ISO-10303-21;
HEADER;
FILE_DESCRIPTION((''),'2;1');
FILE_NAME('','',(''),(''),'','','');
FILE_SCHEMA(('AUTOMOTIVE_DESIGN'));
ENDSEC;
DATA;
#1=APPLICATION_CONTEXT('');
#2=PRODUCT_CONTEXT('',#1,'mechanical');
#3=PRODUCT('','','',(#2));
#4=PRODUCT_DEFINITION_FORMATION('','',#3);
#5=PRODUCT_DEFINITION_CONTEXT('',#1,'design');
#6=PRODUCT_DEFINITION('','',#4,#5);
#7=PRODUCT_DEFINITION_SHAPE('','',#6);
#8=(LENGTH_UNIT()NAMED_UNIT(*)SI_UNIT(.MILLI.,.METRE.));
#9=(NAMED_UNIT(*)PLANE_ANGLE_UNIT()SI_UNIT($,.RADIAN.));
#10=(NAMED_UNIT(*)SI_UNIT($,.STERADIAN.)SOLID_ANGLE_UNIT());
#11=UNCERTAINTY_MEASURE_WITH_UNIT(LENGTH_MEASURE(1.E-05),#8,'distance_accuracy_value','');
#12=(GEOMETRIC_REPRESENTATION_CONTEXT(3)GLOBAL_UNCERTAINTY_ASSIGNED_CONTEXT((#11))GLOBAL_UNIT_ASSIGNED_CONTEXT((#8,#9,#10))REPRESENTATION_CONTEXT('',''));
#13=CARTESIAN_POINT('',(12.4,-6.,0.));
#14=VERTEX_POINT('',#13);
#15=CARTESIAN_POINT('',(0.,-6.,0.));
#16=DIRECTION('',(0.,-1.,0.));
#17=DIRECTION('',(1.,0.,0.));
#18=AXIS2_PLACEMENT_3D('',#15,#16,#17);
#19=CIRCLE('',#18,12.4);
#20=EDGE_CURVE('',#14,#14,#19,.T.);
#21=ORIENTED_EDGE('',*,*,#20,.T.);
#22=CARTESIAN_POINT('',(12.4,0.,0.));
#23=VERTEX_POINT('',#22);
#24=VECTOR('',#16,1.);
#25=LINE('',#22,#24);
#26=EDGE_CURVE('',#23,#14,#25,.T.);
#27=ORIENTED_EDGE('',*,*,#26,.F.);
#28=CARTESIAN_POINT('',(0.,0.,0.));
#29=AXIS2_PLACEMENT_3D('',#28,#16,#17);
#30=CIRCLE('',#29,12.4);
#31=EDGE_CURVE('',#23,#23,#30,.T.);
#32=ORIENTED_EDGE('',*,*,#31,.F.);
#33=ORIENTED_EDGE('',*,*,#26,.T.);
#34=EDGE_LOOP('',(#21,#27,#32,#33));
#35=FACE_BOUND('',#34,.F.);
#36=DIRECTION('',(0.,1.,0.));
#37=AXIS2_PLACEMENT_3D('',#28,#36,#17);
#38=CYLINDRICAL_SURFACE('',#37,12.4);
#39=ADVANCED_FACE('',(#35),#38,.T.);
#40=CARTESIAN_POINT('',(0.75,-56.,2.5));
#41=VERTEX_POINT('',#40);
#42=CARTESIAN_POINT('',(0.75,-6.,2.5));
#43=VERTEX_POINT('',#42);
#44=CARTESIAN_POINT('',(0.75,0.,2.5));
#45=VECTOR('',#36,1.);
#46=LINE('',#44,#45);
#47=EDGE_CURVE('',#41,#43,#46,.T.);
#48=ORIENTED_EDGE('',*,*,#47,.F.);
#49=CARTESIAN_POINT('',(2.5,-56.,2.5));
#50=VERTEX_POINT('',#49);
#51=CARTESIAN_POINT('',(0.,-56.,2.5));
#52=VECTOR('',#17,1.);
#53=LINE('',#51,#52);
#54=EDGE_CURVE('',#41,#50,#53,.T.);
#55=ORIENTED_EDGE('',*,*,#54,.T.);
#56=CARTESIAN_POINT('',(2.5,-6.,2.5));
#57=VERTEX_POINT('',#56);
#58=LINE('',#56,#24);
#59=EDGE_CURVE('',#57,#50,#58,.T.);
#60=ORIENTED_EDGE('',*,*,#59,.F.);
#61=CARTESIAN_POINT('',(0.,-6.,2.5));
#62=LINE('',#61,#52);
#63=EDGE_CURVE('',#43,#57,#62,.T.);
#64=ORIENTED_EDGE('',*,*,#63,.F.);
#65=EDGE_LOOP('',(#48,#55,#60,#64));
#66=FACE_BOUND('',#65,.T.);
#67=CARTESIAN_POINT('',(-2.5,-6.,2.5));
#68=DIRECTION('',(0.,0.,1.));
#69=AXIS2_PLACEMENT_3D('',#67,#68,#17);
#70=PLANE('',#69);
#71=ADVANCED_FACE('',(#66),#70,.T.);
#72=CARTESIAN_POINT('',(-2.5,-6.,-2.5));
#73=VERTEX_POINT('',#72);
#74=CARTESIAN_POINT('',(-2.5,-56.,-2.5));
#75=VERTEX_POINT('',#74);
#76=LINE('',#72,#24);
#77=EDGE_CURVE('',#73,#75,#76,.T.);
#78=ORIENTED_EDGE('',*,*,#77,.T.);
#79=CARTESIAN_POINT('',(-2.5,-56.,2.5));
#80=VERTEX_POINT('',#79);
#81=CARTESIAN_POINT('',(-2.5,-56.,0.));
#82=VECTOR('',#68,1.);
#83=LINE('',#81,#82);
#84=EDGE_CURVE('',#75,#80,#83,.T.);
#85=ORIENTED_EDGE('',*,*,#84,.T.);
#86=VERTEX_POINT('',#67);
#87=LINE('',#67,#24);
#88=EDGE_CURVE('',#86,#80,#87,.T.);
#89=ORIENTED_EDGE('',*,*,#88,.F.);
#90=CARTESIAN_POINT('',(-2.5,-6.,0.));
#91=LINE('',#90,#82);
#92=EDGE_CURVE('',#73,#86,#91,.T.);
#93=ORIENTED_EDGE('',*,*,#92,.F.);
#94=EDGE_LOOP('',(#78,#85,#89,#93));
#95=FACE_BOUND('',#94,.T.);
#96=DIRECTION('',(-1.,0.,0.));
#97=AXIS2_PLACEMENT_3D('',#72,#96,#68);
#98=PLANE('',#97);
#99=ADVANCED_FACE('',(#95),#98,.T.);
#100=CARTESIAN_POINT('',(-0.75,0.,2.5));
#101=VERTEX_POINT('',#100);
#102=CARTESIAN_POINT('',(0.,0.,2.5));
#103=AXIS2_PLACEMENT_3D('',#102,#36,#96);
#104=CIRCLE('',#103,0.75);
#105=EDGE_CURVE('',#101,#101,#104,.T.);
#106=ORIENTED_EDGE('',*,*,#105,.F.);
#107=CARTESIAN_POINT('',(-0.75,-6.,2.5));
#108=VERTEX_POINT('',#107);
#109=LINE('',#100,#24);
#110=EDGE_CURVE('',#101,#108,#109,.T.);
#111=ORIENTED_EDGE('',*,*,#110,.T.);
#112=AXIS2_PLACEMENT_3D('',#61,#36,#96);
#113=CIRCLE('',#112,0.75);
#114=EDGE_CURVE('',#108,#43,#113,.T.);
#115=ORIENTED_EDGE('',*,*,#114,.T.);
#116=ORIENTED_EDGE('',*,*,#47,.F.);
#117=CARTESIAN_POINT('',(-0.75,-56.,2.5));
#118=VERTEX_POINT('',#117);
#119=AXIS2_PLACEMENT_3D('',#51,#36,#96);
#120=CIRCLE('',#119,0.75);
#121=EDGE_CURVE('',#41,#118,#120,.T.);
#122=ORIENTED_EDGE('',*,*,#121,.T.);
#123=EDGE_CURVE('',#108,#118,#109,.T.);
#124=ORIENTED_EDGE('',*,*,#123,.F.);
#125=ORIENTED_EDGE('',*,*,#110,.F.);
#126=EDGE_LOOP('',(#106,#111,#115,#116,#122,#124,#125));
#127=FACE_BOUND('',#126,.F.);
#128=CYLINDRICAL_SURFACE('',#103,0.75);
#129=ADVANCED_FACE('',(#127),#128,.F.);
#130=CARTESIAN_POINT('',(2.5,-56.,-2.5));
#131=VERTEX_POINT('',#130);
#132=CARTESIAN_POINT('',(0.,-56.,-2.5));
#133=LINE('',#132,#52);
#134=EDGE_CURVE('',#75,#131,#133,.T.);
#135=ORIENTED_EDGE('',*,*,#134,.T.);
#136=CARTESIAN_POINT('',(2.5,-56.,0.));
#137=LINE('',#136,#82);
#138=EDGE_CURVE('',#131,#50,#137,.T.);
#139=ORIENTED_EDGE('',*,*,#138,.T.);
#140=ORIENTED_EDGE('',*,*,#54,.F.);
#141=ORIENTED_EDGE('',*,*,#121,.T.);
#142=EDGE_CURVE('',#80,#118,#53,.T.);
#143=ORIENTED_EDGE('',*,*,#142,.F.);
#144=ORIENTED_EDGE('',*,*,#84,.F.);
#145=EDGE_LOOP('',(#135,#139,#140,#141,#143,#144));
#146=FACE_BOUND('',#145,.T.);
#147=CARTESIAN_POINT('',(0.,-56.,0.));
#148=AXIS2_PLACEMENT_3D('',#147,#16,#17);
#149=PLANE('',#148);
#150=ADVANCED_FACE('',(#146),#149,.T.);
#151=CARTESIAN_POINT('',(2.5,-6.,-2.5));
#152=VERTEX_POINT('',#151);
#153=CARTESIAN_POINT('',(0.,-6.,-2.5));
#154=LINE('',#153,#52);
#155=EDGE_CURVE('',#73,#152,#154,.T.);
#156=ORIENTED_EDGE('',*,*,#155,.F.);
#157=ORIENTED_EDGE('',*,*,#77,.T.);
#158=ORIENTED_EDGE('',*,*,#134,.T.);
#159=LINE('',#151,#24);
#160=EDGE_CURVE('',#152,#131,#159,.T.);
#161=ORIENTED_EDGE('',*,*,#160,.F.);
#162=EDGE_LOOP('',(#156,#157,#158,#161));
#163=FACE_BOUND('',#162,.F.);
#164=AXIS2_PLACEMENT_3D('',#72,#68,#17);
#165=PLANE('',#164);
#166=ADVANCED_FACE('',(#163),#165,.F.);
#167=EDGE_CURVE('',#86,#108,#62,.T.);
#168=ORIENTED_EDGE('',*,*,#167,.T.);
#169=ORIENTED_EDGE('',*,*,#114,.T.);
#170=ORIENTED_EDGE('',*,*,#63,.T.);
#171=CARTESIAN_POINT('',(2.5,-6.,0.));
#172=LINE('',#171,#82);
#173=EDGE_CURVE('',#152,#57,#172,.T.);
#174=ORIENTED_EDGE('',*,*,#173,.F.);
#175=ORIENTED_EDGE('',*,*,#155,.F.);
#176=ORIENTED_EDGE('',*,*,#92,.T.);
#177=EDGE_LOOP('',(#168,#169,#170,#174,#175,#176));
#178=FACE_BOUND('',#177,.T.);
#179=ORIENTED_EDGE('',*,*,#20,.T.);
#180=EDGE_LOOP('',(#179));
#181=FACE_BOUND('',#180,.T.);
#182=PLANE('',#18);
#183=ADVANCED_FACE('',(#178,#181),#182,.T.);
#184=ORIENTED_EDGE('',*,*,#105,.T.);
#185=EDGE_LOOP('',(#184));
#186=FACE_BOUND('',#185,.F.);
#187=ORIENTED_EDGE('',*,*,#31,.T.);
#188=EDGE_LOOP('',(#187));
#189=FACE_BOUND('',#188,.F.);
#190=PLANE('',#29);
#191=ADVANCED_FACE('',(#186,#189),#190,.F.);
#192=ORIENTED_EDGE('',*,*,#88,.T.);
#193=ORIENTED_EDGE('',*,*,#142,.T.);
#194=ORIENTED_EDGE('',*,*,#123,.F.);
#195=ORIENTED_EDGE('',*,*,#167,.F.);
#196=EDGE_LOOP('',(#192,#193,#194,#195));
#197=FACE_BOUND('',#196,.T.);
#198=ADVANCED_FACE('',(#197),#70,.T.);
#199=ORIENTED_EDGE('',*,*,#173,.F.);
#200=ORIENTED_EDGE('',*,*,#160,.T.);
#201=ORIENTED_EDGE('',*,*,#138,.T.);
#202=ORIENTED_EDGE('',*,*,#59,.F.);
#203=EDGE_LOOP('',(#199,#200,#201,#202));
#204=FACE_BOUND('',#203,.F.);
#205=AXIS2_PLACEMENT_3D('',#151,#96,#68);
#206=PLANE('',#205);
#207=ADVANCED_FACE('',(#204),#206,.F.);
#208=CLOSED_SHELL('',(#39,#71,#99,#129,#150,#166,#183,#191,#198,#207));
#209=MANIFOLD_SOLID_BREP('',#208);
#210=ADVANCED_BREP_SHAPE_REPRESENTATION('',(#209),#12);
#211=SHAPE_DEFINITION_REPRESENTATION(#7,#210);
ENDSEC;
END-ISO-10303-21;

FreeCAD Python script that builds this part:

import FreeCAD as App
import Part
import Sketcher
from FreeCAD import Vector


def add_polygon(sketch, points):
    """Adds a closed chain of lines whose ends are joined by coincident constraints."""
    first, n = sketch.GeometryCount, len(points)
    for a, b in zip(points, points[1:] + points[:1]):
        sketch.addGeometry(Part.LineSegment(App.Vector(*a, 0), App.Vector(*b, 0)), False)
    for i in range(n):
        sketch.addConstraint(Sketcher.Constraint("Coincident", first + i, 2, first + (i + 1) % n, 1))

doc = App.newDocument("Part")
params = doc.addObject("Spreadsheet::Sheet", "Params")
for row, (alias, value) in enumerate([
    ("sketch1_diameter", "24.8 mm"),
    ("pad1_length", "6 mm"),
    ("sketch2_width", "5 mm"),
    ("pad2_length", "50 mm"),
    ("sketch3_diameter", "1.5 mm"),
    ("pocket1_length", "60 mm"),
], start=1):
    params.set(f"A{row}", alias)
    params.set(f"B{row}", "=" + value)
    params.setAlias(f"B{row}", alias)

body = doc.addObject("PartDesign::Body", "Body")

# Sketch on XZ plane
sketch1 = body.newObject("Sketcher::SketchObject", "Sketch")
sketch1.AttachmentSupport = (doc.getObject("XZ_Plane"), [""])
sketch1.MapMode = "FlatFace"
sketch1.addGeometry(Part.Circle(Vector(0, 0, 0), Vector(0, 0, 1), 12.4), False)
sketch1.addConstraint(Sketcher.Constraint("Coincident", 0, 3, -1, 1))
sketch1.addConstraint(Sketcher.Constraint("Diameter", 0, 24.8))
sketch1.setExpression("Constraints[1]", "Params.sketch1_diameter")
pad1 = body.newObject("PartDesign::Pad", "Pad")
pad1.Profile = sketch1
pad1.setExpression("Length", "Params.pad1_length")

# Sketch on XZ plane
sketch2 = body.newObject("Sketcher::SketchObject", "Sketch001")
sketch2.AttachmentSupport = (doc.getObject("XZ_Plane"), [""])
sketch2.MapMode = "FlatFace"
sketch2.AttachmentOffset = App.Placement(Vector(0, 0, 6), App.Rotation())
add_polygon(sketch2, [(-2.5, 2.5), (-2.5, -2.5), (2.5, -2.5), (2.5, 2.5)])  # lines 0-3
sketch2.addConstraint(Sketcher.Constraint("Vertical", 0))
sketch2.addConstraint(Sketcher.Constraint("Horizontal", 1))
sketch2.addConstraint(Sketcher.Constraint("Vertical", 2))
sketch2.addConstraint(Sketcher.Constraint("Horizontal", 3))
sketch2.addConstraint(Sketcher.Constraint("Symmetric", 0, 2, 2, 2, -1, 1))
sketch2.addConstraint(Sketcher.Constraint("Equal", 3, 0))
sketch2.addConstraint(Sketcher.Constraint("DistanceX", 1, 1, 1, 2, 5.0))
sketch2.setExpression("Constraints[10]", "Params.sketch2_width")
pad2 = body.newObject("PartDesign::Pad", "Pad001")
pad2.Profile = sketch2
pad2.setExpression("Length", "Params.pad2_length")

# Sketch on XZ plane
sketch3 = body.newObject("Sketcher::SketchObject", "Sketch002")
sketch3.AttachmentSupport = (doc.getObject("XZ_Plane"), [""])
sketch3.MapMode = "FlatFace"
sketch3.addGeometry(Part.Circle(Vector(0, 2.5, 0), Vector(0, 0, 1), 0.75), False)
sketch3.addConstraint(Sketcher.Constraint("PointOnObject", 0, 3, -2))
sketch3.addConstraint(Sketcher.Constraint("Diameter", 0, 1.5))
sketch3.addConstraint(Sketcher.Constraint("DistanceY", -1, 1, 0, 3, 2.5))
sketch3.setExpression("Constraints[1]", "Params.sketch3_diameter")
pocket1 = body.newObject("PartDesign::Pocket", "Pocket")
pocket1.Profile = sketch3
pocket1.setExpression("Length", "Params.pocket1_length")
pocket1.Reversed = True

doc.recompute()
